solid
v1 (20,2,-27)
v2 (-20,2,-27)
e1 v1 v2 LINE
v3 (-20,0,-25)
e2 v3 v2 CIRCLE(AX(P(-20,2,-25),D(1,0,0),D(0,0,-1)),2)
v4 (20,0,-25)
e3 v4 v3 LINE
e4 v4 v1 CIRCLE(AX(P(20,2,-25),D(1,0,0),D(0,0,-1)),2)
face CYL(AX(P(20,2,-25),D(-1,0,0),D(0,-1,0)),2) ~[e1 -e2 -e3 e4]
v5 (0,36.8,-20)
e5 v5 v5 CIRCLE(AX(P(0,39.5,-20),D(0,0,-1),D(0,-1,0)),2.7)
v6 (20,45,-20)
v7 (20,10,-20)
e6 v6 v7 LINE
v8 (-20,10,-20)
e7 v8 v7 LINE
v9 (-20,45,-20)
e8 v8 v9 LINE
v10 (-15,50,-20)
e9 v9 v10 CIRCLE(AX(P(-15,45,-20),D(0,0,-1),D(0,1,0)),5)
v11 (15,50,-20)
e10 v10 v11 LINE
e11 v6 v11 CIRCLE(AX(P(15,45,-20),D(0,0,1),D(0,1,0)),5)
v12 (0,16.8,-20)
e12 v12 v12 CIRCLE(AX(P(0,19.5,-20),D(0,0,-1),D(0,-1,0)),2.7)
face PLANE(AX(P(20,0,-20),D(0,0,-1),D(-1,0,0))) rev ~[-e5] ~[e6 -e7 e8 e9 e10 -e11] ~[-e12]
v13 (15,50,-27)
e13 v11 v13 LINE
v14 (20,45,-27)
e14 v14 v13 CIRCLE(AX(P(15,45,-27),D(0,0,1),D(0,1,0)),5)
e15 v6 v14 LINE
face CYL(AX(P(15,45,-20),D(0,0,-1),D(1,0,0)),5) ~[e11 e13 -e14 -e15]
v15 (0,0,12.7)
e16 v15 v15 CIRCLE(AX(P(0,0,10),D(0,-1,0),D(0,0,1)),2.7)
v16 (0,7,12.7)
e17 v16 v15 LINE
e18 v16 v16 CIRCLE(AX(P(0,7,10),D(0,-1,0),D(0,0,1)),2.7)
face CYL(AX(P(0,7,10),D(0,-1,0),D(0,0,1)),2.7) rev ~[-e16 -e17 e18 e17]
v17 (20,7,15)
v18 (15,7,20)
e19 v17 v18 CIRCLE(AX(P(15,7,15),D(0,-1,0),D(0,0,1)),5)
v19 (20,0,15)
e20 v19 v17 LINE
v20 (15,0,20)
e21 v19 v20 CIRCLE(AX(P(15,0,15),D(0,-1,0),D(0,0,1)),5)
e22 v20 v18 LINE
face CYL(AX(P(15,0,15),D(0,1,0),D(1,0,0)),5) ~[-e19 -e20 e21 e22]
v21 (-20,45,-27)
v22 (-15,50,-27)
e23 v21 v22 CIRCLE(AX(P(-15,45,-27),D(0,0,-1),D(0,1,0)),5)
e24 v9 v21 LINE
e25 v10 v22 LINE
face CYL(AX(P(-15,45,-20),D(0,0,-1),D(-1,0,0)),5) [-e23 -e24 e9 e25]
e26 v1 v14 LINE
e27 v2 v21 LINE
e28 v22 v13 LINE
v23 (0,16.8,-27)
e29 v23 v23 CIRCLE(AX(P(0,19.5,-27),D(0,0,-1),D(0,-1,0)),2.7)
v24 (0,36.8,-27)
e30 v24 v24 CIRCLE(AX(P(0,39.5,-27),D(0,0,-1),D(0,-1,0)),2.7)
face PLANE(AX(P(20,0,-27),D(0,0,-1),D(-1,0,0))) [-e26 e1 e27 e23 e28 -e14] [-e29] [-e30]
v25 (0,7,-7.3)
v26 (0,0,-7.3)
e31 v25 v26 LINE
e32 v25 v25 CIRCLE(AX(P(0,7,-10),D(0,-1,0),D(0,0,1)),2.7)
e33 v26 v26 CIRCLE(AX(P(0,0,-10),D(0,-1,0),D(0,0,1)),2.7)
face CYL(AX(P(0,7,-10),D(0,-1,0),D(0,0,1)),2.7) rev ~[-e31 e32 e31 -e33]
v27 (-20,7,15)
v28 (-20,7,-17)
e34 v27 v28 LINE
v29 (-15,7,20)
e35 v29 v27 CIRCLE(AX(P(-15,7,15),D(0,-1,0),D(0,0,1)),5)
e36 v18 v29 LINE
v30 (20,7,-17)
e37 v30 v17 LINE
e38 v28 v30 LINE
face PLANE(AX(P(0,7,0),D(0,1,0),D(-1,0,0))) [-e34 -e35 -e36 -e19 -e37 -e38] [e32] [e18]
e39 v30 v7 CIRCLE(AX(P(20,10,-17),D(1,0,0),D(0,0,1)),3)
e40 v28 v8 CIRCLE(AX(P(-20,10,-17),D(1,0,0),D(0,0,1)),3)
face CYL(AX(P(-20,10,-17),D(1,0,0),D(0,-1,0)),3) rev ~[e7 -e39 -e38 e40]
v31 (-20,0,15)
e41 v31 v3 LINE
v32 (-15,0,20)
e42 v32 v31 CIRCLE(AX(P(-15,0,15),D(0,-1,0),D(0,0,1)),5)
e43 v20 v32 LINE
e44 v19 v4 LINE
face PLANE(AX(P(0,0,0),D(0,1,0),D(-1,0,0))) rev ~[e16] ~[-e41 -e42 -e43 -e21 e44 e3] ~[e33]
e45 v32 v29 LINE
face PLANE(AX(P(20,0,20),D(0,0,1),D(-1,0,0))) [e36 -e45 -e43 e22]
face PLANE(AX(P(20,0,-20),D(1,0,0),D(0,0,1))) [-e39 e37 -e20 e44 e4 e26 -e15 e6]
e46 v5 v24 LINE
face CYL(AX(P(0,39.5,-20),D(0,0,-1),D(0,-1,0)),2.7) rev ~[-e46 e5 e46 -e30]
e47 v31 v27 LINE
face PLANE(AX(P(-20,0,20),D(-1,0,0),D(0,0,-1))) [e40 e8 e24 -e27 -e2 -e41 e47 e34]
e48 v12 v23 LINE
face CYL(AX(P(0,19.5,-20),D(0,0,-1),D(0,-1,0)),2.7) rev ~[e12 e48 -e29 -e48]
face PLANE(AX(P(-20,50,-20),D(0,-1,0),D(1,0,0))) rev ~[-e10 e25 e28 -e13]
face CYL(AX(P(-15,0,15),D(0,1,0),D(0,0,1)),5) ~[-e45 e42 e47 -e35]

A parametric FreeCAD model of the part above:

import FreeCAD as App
import Part
import Sketcher


def edges_at(feature, points):
    """Names of the edges that pass closest to the given points."""
    edges = feature.Shape.Edges
    near = lambda p: min(range(len(edges)), key=lambda i: edges[i].distToShape(Part.Vertex(*p))[0])
    return sorted({f"Edge{near(p) + 1}" for p in points})


def add_polygon(sketch, points):
    """Adds a closed chain of lines whose ends are joined by coincident constraints."""
    first, n = sketch.GeometryCount, len(points)
    for a, b in zip(points, points[1:] + points[:1]):
        sketch.addGeometry(Part.LineSegment(App.Vector(*a, 0), App.Vector(*b, 0)), False)
    for i in range(n):
        sketch.addConstraint(Sketcher.Constraint("Coincident", first + i, 2, first + (i + 1) % n, 1))

doc = App.newDocument("Part")
params = doc.addObject("Spreadsheet::Sheet", "Params")
for row, (alias, value) in enumerate([
    ("sketch1_width", "40 mm"),
    ("pad1_length", "7 mm"),
    ("sketch2_width", "40 mm"),
    ("sketch2_height", "50 mm"),
    ("pad2_length", "7 mm"),
    ("fillet_radius", "3 mm"),
    ("fillet2_radius", "5 mm"),
    ("fillet3_radius", "2 mm"),
    ("sketch3_diameter", "5.4 mm"),
    ("hole_diameter", "5.4 mm"),
    ("sketch4_diameter", "5.4 mm"),
    ("hole2_diameter", "5.4 mm"),
], start=1):
    params.set(f"A{row}", alias)
    params.set(f"B{row}", "=" + value)
    params.setAlias(f"B{row}", alias)

body = doc.addObject("PartDesign::Body", "Body")

sketch1 = body.newObject("Sketcher::SketchObject", "Sketch")
sketch1.AttachmentSupport = (doc.getObject("XZ_Plane"), [""])
sketch1.MapMode = "FlatFace"
add_polygon(sketch1, [(20, -20), (-20, -20), (-20, 20), (20, 20)])
sketch1.addConstraint(Sketcher.Constraint("Horizontal", 0))
sketch1.addConstraint(Sketcher.Constraint("Vertical", 1))
sketch1.addConstraint(Sketcher.Constraint("Horizontal", 2))
sketch1.addConstraint(Sketcher.Constraint("Vertical", 3))
sketch1.addConstraint(Sketcher.Constraint("Symmetric", 0, 2, 2, 2, -1, 1))
sketch1.addConstraint(Sketcher.Constraint("Equal", 2, 1))
sketch1.addConstraint(Sketcher.Constraint("DistanceX", 0, 2, 0, 1, 40.0))
sketch1.setExpression("Constraints[10]", "Params.sketch1_width")
pad1 = body.newObject("PartDesign::Pad", "Pad")
pad1.Profile = sketch1
pad1.setExpression("Length", "Params.pad1_length")
pad1.Reversed = True

sketch2 = body.newObject("Sketcher::SketchObject", "Sketch001")
sketch2.AttachmentSupport = (doc.getObject("XY_Plane"), [""])
sketch2.MapMode = "FlatFace"
sketch2.AttachmentOffset = App.Placement(App.Vector(0, 0, -20), App.Rotation())
add_polygon(sketch2, [(20, 50), (20, 0), (-20, 0), (-20, 50)])
sketch2.addConstraint(Sketcher.Constraint("Vertical", 0))
sketch2.addConstraint(Sketcher.Constraint("Horizontal", 1))
sketch2.addConstraint(Sketcher.Constraint("Vertical", 2))
sketch2.addConstraint(Sketcher.Constraint("Horizontal", 3))
sketch2.addConstraint(Sketcher.Constraint("Symmetric", 0, 2, 1, 2, -1, 1))
sketch2.addConstraint(Sketcher.Constraint("DistanceX", 1, 2, 1, 1, 40.0))
sketch2.addConstraint(Sketcher.Constraint("DistanceY", 0, 2, 0, 1, 50.0))
sketch2.setExpression("Constraints[9]", "Params.sketch2_width")
sketch2.setExpression("Constraints[10]", "Params.sketch2_height")
pad2 = body.newObject("PartDesign::Pad", "Pad001")
pad2.Profile = sketch2
pad2.setExpression("Length", "Params.pad2_length")
pad2.Reversed = True
doc.recompute()

fillet = body.newObject("PartDesign::Fillet", "Fillet")
fillet.Base = (pad2, edges_at(pad2, [(0, 7, -20)]))
fillet.setExpression("Radius", "Params.fillet_radius")
doc.recompute()

fillet2 = body.newObject("PartDesign::Fillet", "Fillet001")
fillet2.Base = (fillet, edges_at(fillet, [
    (-20, 50, -23.5),
    (20, 50, -23.5),
    (-20, 3.5, 20),
    (20, 3.5, 20),
]))
fillet2.setExpression("Radius", "Params.fillet2_radius")
doc.recompute()

fillet3 = body.newObject("PartDesign::Fillet", "Fillet002")
fillet3.Base = (fillet2, edges_at(fillet2, [(0, 0, -27)]))
fillet3.setExpression("Radius", "Params.fillet3_radius")

sketch3 = body.newObject("Sketcher::SketchObject", "Sketch002")
sketch3.AttachmentSupport = (doc.getObject("XY_Plane"), [""])
sketch3.MapMode = "FlatFace"
sketch3.AttachmentOffset = App.Placement(App.Vector(0, 0, -20), App.Rotation())
sketch3.addGeometry(Part.Circle(App.Vector(0, 39.5, 0), App.Vector(0, 0, 1), 2.7), False)
sketch3.addGeometry(Part.Circle(App.Vector(0, 19.5, 0), App.Vector(0, 0, 1), 2.7), False)
sketch3.addConstraint(Sketcher.Constraint("Equal", 0, 1))
sketch3.addConstraint(Sketcher.Constraint("PointOnObject", 0, 3, -2))
sketch3.addConstraint(Sketcher.Constraint("PointOnObject", 1, 3, -2))
sketch3.addConstraint(Sketcher.Constraint("Diameter", 0, 5.4))
sketch3.addConstraint(Sketcher.Constraint("DistanceY", 1, 3, 0, 3, 20.0))
sketch3.addConstraint(Sketcher.Constraint("DistanceY", -1, 1, 0, 3, 39.5))
sketch3.setExpression("Constraints[3]", "Params.sketch3_diameter")
doc.recompute()
hole = body.newObject("PartDesign::Hole", "Hole")
hole.Profile = sketch3
hole.ThreadType = "None"
hole.setExpression("Diameter", "Params.hole_diameter")
hole.DepthType = "ThroughAll"

sketch4 = body.newObject("Sketcher::SketchObject", "Sketch003")
sketch4.AttachmentSupport = (doc.getObject("XZ_Plane"), [""])
sketch4.MapMode = "FlatFace"
sketch4.AttachmentOffset = App.Placement(App.Vector(0, 0, -7), App.Rotation())
sketch4.addGeometry(Part.Circle(App.Vector(0, 10, 0), App.Vector(0, 0, 1), 2.7), False)
sketch4.addGeometry(Part.Circle(App.Vector(0, -10, 0), App.Vector(0, 0, 1), 2.7), False)
sketch4.addConstraint(Sketcher.Constraint("Equal", 0, 1))
sketch4.addConstraint(Sketcher.Constraint("Symmetric", 0, 3, 1, 3, -1, 1))
sketch4.addConstraint(Sketcher.Constraint("PointOnObject", 0, 3, -2))
sketch4.addConstraint(Sketcher.Constraint("Diameter", 0, 5.4))
sketch4.addConstraint(Sketcher.Constraint("DistanceY", -1, 1, 0, 3, 10.0))
sketch4.setExpression("Constraints[3]", "Params.sketch4_diameter")
doc.recompute()
hole2 = body.newObject("PartDesign::Hole", "Hole001")
hole2.Profile = sketch4
hole2.ThreadType = "None"
hole2.setExpression("Diameter", "Params.hole2_diameter")
hole2.DepthType = "ThroughAll"
hole2.Reversed = True

doc.recompute()
